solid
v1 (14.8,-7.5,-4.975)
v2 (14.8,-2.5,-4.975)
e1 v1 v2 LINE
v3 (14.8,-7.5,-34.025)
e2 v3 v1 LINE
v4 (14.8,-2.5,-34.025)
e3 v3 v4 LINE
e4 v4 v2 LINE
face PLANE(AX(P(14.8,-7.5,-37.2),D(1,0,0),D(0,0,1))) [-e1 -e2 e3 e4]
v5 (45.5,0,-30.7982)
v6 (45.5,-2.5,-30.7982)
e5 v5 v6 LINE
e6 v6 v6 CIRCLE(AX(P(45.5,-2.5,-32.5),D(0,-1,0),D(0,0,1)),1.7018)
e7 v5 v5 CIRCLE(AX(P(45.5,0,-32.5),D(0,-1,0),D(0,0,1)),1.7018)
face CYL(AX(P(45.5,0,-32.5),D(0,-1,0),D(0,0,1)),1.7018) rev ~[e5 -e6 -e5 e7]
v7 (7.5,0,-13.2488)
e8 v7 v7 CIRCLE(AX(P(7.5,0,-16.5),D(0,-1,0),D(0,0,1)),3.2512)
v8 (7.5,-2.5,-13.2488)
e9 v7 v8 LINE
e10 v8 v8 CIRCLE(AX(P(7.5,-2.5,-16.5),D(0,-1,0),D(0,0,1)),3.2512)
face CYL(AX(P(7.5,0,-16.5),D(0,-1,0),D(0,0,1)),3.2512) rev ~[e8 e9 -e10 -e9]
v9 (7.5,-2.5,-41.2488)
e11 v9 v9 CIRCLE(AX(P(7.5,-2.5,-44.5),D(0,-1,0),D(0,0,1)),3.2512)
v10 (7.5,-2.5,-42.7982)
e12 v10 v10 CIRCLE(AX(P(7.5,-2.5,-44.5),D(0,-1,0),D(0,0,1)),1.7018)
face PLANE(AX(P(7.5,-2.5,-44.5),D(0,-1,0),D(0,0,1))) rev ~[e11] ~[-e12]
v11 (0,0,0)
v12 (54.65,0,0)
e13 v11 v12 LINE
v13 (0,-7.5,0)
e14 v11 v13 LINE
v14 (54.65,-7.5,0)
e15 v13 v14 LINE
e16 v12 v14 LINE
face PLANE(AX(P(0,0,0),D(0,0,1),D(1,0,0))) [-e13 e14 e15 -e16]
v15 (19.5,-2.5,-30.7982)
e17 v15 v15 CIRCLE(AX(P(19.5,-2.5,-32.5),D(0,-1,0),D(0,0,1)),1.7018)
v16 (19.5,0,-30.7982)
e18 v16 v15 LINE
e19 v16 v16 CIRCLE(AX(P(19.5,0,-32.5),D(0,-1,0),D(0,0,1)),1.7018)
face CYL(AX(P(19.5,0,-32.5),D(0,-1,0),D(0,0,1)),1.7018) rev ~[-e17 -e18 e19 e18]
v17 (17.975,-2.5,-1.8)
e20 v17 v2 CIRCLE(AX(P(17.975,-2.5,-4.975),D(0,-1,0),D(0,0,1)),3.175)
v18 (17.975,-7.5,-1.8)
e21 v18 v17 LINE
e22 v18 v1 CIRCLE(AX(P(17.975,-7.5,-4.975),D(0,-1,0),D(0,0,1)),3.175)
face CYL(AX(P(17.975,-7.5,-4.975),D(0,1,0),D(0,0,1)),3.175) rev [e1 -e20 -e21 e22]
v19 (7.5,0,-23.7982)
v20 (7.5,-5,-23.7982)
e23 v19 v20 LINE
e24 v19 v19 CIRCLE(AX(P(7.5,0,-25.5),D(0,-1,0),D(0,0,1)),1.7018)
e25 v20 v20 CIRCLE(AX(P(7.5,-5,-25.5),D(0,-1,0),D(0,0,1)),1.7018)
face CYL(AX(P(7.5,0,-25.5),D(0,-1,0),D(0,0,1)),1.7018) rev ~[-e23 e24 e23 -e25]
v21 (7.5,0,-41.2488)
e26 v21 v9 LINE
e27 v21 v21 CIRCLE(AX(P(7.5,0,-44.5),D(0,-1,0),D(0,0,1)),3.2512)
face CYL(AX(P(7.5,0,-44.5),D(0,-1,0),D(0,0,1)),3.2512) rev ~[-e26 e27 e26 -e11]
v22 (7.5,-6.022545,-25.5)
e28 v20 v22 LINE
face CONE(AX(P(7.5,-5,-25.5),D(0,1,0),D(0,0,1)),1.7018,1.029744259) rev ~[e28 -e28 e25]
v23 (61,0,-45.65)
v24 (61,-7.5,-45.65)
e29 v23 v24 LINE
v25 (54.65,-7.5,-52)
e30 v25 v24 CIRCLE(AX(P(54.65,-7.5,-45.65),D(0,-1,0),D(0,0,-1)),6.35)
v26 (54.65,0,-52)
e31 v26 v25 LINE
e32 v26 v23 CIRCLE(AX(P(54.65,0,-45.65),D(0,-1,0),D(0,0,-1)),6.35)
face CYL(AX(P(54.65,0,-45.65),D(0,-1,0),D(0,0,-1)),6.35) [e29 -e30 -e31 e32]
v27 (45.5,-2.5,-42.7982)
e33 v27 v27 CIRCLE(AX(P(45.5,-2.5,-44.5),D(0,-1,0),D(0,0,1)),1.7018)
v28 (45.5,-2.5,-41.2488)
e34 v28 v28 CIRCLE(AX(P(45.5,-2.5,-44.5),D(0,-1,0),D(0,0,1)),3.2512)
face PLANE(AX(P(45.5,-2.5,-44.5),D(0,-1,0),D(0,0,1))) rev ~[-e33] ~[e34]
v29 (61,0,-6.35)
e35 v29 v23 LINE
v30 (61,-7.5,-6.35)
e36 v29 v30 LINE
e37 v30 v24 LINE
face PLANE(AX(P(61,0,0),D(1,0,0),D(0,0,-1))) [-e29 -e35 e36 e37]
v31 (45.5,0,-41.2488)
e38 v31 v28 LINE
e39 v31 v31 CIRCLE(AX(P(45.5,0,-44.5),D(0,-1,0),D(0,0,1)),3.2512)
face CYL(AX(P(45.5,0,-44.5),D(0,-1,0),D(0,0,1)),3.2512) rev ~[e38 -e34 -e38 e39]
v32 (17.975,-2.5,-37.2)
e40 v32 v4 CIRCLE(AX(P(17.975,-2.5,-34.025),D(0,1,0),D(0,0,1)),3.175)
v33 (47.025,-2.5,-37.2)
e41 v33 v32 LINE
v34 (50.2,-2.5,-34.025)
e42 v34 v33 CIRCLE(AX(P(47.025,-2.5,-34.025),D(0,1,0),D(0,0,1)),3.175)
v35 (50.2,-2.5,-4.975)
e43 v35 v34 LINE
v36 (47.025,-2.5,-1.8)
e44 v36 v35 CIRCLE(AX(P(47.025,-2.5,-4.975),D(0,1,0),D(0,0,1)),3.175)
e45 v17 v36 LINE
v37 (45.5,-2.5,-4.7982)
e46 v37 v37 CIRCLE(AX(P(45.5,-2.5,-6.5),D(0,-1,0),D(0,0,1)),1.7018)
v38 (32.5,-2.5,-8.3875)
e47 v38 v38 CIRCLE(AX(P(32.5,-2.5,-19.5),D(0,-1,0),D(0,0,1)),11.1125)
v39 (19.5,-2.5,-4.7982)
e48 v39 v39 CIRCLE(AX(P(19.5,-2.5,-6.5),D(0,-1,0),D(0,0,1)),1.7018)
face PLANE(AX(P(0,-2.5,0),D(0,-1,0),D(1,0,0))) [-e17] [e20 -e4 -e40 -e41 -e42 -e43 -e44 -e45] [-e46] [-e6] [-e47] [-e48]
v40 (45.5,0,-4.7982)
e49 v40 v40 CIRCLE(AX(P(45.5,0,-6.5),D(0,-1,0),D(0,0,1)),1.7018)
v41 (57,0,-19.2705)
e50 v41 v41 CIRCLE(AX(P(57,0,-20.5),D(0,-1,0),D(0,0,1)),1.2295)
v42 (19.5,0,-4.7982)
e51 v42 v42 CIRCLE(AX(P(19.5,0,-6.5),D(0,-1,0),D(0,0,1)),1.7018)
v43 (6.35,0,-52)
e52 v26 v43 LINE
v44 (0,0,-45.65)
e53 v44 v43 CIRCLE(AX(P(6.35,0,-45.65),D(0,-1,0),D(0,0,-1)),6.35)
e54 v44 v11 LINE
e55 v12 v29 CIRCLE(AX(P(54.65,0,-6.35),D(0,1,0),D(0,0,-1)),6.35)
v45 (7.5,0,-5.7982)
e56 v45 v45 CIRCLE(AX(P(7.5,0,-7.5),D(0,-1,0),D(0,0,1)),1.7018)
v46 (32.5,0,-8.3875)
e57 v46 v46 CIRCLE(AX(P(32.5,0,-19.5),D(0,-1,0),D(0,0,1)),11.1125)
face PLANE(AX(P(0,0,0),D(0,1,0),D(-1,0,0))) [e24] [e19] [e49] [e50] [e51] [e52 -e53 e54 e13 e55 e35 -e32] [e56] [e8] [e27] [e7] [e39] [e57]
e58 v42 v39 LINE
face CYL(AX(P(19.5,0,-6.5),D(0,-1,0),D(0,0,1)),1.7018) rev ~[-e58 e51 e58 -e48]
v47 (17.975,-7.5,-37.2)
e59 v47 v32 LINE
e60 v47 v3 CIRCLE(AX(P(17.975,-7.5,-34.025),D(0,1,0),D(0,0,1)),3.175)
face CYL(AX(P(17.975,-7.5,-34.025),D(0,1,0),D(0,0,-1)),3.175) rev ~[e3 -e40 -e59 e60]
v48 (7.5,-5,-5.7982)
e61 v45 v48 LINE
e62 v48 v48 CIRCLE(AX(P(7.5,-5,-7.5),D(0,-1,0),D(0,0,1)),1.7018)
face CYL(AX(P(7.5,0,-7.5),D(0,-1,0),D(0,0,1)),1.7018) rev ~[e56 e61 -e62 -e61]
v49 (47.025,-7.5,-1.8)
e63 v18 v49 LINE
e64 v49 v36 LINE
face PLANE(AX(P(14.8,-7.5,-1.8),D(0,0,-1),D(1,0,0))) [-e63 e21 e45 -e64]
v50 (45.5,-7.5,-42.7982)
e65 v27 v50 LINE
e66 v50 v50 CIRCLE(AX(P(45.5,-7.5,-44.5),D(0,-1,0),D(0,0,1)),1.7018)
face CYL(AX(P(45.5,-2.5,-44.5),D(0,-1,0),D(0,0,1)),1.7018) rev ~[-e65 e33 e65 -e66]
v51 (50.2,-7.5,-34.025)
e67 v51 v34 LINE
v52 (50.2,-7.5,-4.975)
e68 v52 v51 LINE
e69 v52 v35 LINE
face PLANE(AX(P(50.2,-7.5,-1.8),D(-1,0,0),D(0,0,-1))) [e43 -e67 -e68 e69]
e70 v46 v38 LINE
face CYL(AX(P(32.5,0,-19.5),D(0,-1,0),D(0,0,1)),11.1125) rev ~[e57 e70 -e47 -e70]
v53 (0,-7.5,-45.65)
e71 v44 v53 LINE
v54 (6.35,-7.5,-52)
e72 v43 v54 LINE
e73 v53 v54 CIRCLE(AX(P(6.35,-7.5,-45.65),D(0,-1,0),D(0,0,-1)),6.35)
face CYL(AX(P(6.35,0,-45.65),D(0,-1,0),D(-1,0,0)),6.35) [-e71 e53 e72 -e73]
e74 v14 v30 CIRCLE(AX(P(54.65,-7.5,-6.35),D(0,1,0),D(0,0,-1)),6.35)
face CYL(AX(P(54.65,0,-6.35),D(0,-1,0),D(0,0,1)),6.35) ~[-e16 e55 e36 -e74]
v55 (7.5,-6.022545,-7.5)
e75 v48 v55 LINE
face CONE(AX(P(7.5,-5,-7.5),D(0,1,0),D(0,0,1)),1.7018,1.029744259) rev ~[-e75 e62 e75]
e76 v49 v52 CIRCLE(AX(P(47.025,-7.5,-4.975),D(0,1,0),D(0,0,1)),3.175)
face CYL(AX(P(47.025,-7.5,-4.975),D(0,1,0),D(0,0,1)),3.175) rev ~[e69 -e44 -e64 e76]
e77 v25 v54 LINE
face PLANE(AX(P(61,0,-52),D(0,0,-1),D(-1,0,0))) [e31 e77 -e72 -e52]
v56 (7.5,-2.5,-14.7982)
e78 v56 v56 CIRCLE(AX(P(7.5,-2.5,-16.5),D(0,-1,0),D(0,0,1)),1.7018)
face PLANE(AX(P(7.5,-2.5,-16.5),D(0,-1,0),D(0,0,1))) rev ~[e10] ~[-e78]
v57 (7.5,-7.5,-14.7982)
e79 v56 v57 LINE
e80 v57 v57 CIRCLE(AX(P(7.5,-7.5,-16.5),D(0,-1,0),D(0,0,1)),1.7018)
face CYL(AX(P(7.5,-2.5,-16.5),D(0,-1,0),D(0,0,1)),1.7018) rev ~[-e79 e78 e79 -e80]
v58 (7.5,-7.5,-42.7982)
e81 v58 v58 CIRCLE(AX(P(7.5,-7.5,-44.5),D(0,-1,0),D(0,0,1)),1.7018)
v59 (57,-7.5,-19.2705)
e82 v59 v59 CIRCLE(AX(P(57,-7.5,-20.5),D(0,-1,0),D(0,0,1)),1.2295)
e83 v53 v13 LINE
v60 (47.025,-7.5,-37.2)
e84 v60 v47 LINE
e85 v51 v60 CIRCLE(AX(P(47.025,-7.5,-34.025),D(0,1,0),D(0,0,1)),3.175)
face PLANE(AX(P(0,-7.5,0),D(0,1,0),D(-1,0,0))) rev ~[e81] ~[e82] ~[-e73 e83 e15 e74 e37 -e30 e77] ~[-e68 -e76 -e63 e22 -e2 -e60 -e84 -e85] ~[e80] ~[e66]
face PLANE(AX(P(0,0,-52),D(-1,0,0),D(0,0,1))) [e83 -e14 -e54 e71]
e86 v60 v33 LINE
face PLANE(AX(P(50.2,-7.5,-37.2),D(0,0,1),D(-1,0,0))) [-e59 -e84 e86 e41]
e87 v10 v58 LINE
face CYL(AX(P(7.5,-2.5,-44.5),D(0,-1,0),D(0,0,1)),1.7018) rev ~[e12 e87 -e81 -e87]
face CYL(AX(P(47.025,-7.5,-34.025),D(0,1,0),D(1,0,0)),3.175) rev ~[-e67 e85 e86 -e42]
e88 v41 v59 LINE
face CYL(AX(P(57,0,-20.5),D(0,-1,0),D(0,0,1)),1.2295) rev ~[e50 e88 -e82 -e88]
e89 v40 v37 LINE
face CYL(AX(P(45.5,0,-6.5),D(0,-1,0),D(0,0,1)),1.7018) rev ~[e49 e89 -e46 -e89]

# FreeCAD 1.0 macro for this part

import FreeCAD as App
import Part
import Sketcher
from FreeCAD import Vector


def edges_at(feature, points):
    """Names of the edges that pass closest to the given points."""
    edges = feature.Shape.Edges
    near = lambda p: min(range(len(edges)), key=lambda i: edges[i].distToShape(Part.Vertex(*p))[0])
    return sorted({f"Edge{near(p) + 1}" for p in points})

doc = App.newDocument("Part")
params = doc.addObject("Spreadsheet::Sheet", "Params")
for row, (alias, value) in enumerate([
    ("sketch1_width", "61 mm"),
    ("sketch1_height", "52 mm"),
    ("pad1_length", "7.5 mm"),
    ("hole_diameter", "3.4036 mm"),
    ("hole2_diameter", "3.4036 mm"),
    ("hole2_cbore_diameter", "6.5024 mm"),
    ("hole2_cbore_depth", "2.5 mm"),
    ("hole3_diameter", "2.459 mm"),
    ("hole4_diameter", "3.4036 mm"),
    ("hole4_depth", "5 mm"),
    ("hole5_diameter", "22.225 mm"),
    ("sketch7_width", "35.4 mm"),
    ("pocket1_length", "5 mm"),
    ("fillet_radius", "3.175 mm"),
    ("fillet2_radius", "6.35 mm"),
], start=1):
    params.set(f"A{row}", alias)
    params.set(f"B{row}", "=" + value)
    params.setAlias(f"B{row}", alias)

body = doc.addObject("PartDesign::Body", "Body")

sketch1 = body.newObject("Sketcher::SketchObject", "Sketch")
sketch1.AttachmentSupport = (doc.getObject("XZ_Plane"), [""])
sketch1.MapMode = "FlatFace"
sketch1.addGeometry(Part.LineSegment(Vector(0, -52, 0), Vector(0, 0, 0)), False)
sketch1.addGeometry(Part.LineSegment(Vector(0, 0, 0), Vector(61, 0, 0)), False)
sketch1.addGeometry(Part.LineSegment(Vector(61, 0, 0), Vector(61, -52, 0)), False)
sketch1.addGeometry(Part.LineSegment(Vector(61, -52, 0), Vector(0, -52, 0)), False)
sketch1.addConstraint(Sketcher.Constraint("Coincident", 0, 2, 1, 1))
sketch1.addConstraint(Sketcher.Constraint("Coincident", 1, 2, 2, 1))
sketch1.addConstraint(Sketcher.Constraint("Coincident", 2, 2, 3, 1))
sketch1.addConstraint(Sketcher.Constraint("Coincident", 3, 2, 0, 1))
sketch1.addConstraint(Sketcher.Constraint("Vertical", 0))
sketch1.addConstraint(Sketcher.Constraint("Horizontal", 1))
sketch1.addConstraint(Sketcher.Constraint("Vertical", 2))
sketch1.addConstraint(Sketcher.Constraint("Horizontal", 3))
sketch1.addConstraint(Sketcher.Constraint("Coincident", 0, 2, -1, 1))
sketch1.addConstraint(Sketcher.Constraint("DistanceX", 1, 1, 1, 2, 61.0))
sketch1.addConstraint(Sketcher.Constraint("DistanceY", 0, 1, 0, 2, 52.0))
sketch1.setExpression("Constraints[9]", "Params.sketch1_width")
sketch1.setExpression("Constraints[10]", "Params.sketch1_height")
pad1 = body.newObject("PartDesign::Pad", "Pad")
pad1.Profile = sketch1
pad1.setExpression("Length", "Params.pad1_length")

sketch2 = body.newObject("Sketcher::SketchObject", "Sketch001")
sketch2.AttachmentSupport = (doc.getObject("XZ_Plane"), [""])
sketch2.MapMode = "FlatFace"
sketch2.addGeometry(Part.Circle(Vector(19.5, -32.5, 0), Vector(0, 0, 1), 1.7018), False)
sketch2.addGeometry(Part.Circle(Vector(45.5, -32.5, 0), Vector(0, 0, 1), 1.7018), False)
sketch2.addGeometry(Part.Circle(Vector(45.5, -6.5, 0), Vector(0, 0, 1), 1.7018), False)
sketch2.addGeometry(Part.Circle(Vector(19.5, -6.5, 0), Vector(0, 0, 1), 1.7018), False)
sketch2.addConstraint(Sketcher.Constraint("Equal", 0, 1))
sketch2.addConstraint(Sketcher.Constraint("Equal", 1, 2))
sketch2.addConstraint(Sketcher.Constraint("Equal", 2, 3))
sketch2.addConstraint(Sketcher.Constraint("Horizontal", 0, 3, 1, 3))
sketch2.addConstraint(Sketcher.Constraint("Horizontal", 2, 3, 3, 3))
sketch2.addConstraint(Sketcher.Constraint("Vertical", 1, 3, 2, 3))
sketch2.addConstraint(Sketcher.Constraint("Vertical", 0, 3, 3, 3))
sketch2.addConstraint(Sketcher.Constraint("DistanceX", 0, 3, 1, 3, 26.0))
sketch2.addConstraint(Sketcher.Constraint("DistanceY", 1, 3, 2, 3, 26.0))
sketch2.addConstraint(Sketcher.Constraint("Diameter", 0, 3.4036))
sketch2.addConstraint(Sketcher.Constraint("DistanceX", -1, 1, 0, 3, 19.5))
sketch2.addConstraint(Sketcher.Constraint("DistanceY", 0, 3, -1, 1, 32.5))
doc.recompute()
hole = body.newObject("PartDesign::Hole", "Hole")
hole.Profile = sketch2
hole.ThreadType = "None"
hole.setExpression("Diameter", "Params.hole_diameter")
hole.DepthType = "ThroughAll"
hole.Reversed = True

sketch3 = body.newObject("Sketcher::SketchObject", "Sketch002")
sketch3.AttachmentSupport = (doc.getObject("XZ_Plane"), [""])
sketch3.MapMode = "FlatFace"
sketch3.addGeometry(Part.Circle(Vector(7.5, -16.5, 0), Vector(0, 0, 1), 1.7018), False)
sketch3.addGeometry(Part.Circle(Vector(7.5, -44.5, 0), Vector(0, 0, 1), 1.7018), False)
sketch3.addGeometry(Part.Circle(Vector(45.5, -44.5, 0), Vector(0, 0, 1), 1.7018), False)
sketch3.addConstraint(Sketcher.Constraint("Equal", 0, 1))
sketch3.addConstraint(Sketcher.Constraint("Equal", 1, 2))
sketch3.addConstraint(Sketcher.Constraint("Horizontal", 1, 3, 2, 3))
sketch3.addConstraint(Sketcher.Constraint("Vertical", 0, 3, 1, 3))
sketch3.addConstraint(Sketcher.Constraint("DistanceY", 1, 3, 0, 3, 28.0))
sketch3.addConstraint(Sketcher.Constraint("DistanceX", 1, 3, 2, 3, 38.0))
sketch3.addConstraint(Sketcher.Constraint("Diameter", 0, 3.4036))
sketch3.addConstraint(Sketcher.Constraint("DistanceX", -1, 1, 0, 3, 7.5))
sketch3.addConstraint(Sketcher.Constraint("DistanceY", 0, 3, -1, 1, 16.5))
doc.recompute()
hole2 = body.newObject("PartDesign::Hole", "Hole001")
hole2.Profile = sketch3
hole2.ThreadType = "None"
hole2.setExpression("Diameter", "Params.hole2_diameter")
hole2.DepthType = "ThroughAll"
hole2.HoleCutType = "Counterbore"
hole2.setExpression("HoleCutDiameter", "Params.hole2_cbore_diameter")
hole2.setExpression("HoleCutDepth", "Params.hole2_cbore_depth")
hole2.Reversed = True

sketch4 = body.newObject("Sketcher::SketchObject", "Sketch003")
sketch4.AttachmentSupport = (doc.getObject("XZ_Plane"), [""])
sketch4.MapMode = "FlatFace"
sketch4.addGeometry(Part.Circle(Vector(57, -20.5, 0), Vector(0, 0, 1), 1.2295), False)
sketch4.addConstraint(Sketcher.Constraint("Diameter", 0, 2.459))
sketch4.addConstraint(Sketcher.Constraint("DistanceX", -1, 1, 0, 3, 57.0))
sketch4.addConstraint(Sketcher.Constraint("DistanceY", 0, 3, -1, 1, 20.5))
doc.recompute()
hole3 = body.newObject("PartDesign::Hole", "Hole002")
hole3.Profile = sketch4
hole3.ThreadType = "None"
hole3.setExpression("Diameter", "Params.hole3_diameter")
hole3.DepthType = "ThroughAll"
hole3.Reversed = True

sketch5 = body.newObject("Sketcher::SketchObject", "Sketch004")
sketch5.AttachmentSupport = (doc.getObject("XZ_Plane"), [""])
sketch5.MapMode = "FlatFace"
sketch5.addGeometry(Part.Circle(Vector(7.5, -25.5, 0), Vector(0, 0, 1), 1.7018), False)
sketch5.addGeometry(Part.Circle(Vector(7.5, -7.5, 0), Vector(0, 0, 1), 1.7018), False)
sketch5.addConstraint(Sketcher.Constraint("Equal", 0, 1))
sketch5.addConstraint(Sketcher.Constraint("Vertical", 0, 3, 1, 3))
sketch5.addConstraint(Sketcher.Constraint("DistanceY", 0, 3, 1, 3, 18.0))
sketch5.addConstraint(Sketcher.Constraint("Diameter", 0, 3.4036))
sketch5.addConstraint(Sketcher.Constraint("DistanceX", -1, 1, 0, 3, 7.5))
sketch5.addConstraint(Sketcher.Constraint("DistanceY", 0, 3, -1, 1, 25.5))
doc.recompute()
hole4 = body.newObject("PartDesign::Hole", "Hole003")
hole4.Profile = sketch5
hole4.ThreadType = "None"
hole4.setExpression("Diameter", "Params.hole4_diameter")
hole4.DepthType = "Dimension"
hole4.setExpression("Depth", "Params.hole4_depth")
hole4.DrillPoint = "Angled"
hole4.DrillPointAngle = 118
hole4.Reversed = True

sketch6 = body.newObject("Sketcher::SketchObject", "Sketch005")
sketch6.AttachmentSupport = (doc.getObject("XZ_Plane"), [""])
sketch6.MapMode = "FlatFace"
sketch6.addGeometry(Part.Circle(Vector(32.5, -19.5, 0), Vector(0, 0, 1), 11.1125), False)
sketch6.addConstraint(Sketcher.Constraint("Diameter", 0, 22.225))
sketch6.addConstraint(Sketcher.Constraint("DistanceX", -1, 1, 0, 3, 32.5))
sketch6.addConstraint(Sketcher.Constraint("DistanceY", 0, 3, -1, 1, 19.5))
doc.recompute()
hole5 = body.newObject("PartDesign::Hole", "Hole004")
hole5.Profile = sketch6
hole5.ThreadType = "None"
hole5.setExpression("Diameter", "Params.hole5_diameter")
hole5.DepthType = "ThroughAll"
hole5.Reversed = True

sketch7 = body.newObject("Sketcher::SketchObject", "Sketch006")
sketch7.AttachmentSupport = (doc.getObject("XZ_Plane"), [""])
sketch7.MapMode = "FlatFace"
sketch7.AttachmentOffset = App.Placement(Vector(0, 0, 7.5), App.Rotation())
sketch7.addGeometry(Part.LineSegment(Vector(50.2, -1.8, 0), Vector(14.8, -1.8, 0)), False)
sketch7.addGeometry(Part.LineSegment(Vector(14.8, -1.8, 0), Vector(14.8, -37.2, 0)), False)
sketch7.addGeometry(Part.LineSegment(Vector(14.8, -37.2, 0), Vector(50.2, -37.2, 0)), False)
sketch7.addGeometry(Part.LineSegment(Vector(50.2, -37.2, 0), Vector(50.2, -1.8, 0)), False)
sketch7.addGeometry(Part.Circle(Vector(19.5, -32.5, 0), Vector(0, 0, 1), 1.7018), False)
sketch7.addGeometry(Part.Circle(Vector(45.5, -32.5, 0), Vector(0, 0, 1), 1.7018), False)
sketch7.addGeometry(Part.Circle(Vector(19.5, -6.5, 0), Vector(0, 0, 1), 1.7018), False)
sketch7.addGeometry(Part.Circle(Vector(32.5, -19.5, 0), Vector(0, 0, 1), 11.1125), False)
sketch7.addGeometry(Part.Circle(Vector(45.5, -6.5, 0), Vector(0, 0, 1), 1.7018), False)
sketch7.addConstraint(Sketcher.Constraint("Coincident", 0, 2, 1, 1))
sketch7.addConstraint(Sketcher.Constraint("Coincident", 1, 2, 2, 1))
sketch7.addConstraint(Sketcher.Constraint("Coincident", 2, 2, 3, 1))
sketch7.addConstraint(Sketcher.Constraint("Coincident", 3, 2, 0, 1))
sketch7.addConstraint(Sketcher.Constraint("Horizontal", 0))
sketch7.addConstraint(Sketcher.Constraint("Vertical", 1))
sketch7.addConstraint(Sketcher.Constraint("Horizontal", 2))
sketch7.addConstraint(Sketcher.Constraint("Vertical", 3))
sketch7.addConstraint(Sketcher.Constraint("Equal", 4, 5))
sketch7.addConstraint(Sketcher.Constraint("Equal", 5, 6))
sketch7.addConstraint(Sketcher.Constraint("Equal", 6, 8))
sketch7.addConstraint(Sketcher.Constraint("Horizontal", 4, 3, 5, 3))
sketch7.addConstraint(Sketcher.Constraint("Horizontal", 6, 3, 8, 3))
sketch7.addConstraint(Sketcher.Constraint("Vertical", 4, 3, 6, 3))
sketch7.addConstraint(Sketcher.Constraint("Vertical", 5, 3, 8, 3))
sketch7.addConstraint(Sketcher.Constraint("Equal", 2, 1))
sketch7.addConstraint(Sketcher.Constraint("DistanceX", 0, 2, 0, 1, 35.4))
sketch7.addConstraint(Sketcher.Constraint("DistanceX", -1, 1, 0, 2, 14.8))
sketch7.addConstraint(Sketcher.Constraint("DistanceY", 0, 2, -1, 1, 1.8))
sketch7.addConstraint(Sketcher.Constraint("Diameter", 7, 22.225))
sketch7.addConstraint(Sketcher.Constraint("DistanceX", 4, 3, 5, 3, 26.0))
sketch7.addConstraint(Sketcher.Constraint("DistanceY", 4, 3, 6, 3, 26.0))
sketch7.addConstraint(Sketcher.Constraint("DistanceX", 4, 3, 7, 3, 13.0))
sketch7.addConstraint(Sketcher.Constraint("DistanceY", 4, 3, 7, 3, 13.0))
sketch7.addConstraint(Sketcher.Constraint("Diameter", 4, 3.4036))
sketch7.addConstraint(Sketcher.Constraint("DistanceX", -1, 1, 4, 3, 19.5))
sketch7.addConstraint(Sketcher.Constraint("DistanceY", 4, 3, -1, 1, 32.5))
sketch7.setExpression("Constraints[16]", "Params.sketch7_width")
pocket1 = body.newObject("PartDesign::Pocket", "Pocket")
pocket1.Profile = sketch7
pocket1.setExpression("Length", "Params.pocket1_length")
doc.recompute()

fillet = body.newObject("PartDesign::Fillet", "Fillet")
fillet.Base = (pocket1, edges_at(pocket1, [
    (14.8, -5, -1.8),
    (50.2, -5, -1.8),
    (50.2, -5, -37.2),
    (14.8, -5, -37.2),
]))
fillet.setExpression("Radius", "Params.fillet_radius")
doc.recompute()

fillet2 = body.newObject("PartDesign::Fillet", "Fillet001")
fillet2.Base = (fillet, edges_at(fillet, [(61, -3.75, 0), (61, -3.75, -52), (0, -3.75, -52)]))
fillet2.setExpression("Radius", "Params.fillet2_radius")

doc.recompute()
